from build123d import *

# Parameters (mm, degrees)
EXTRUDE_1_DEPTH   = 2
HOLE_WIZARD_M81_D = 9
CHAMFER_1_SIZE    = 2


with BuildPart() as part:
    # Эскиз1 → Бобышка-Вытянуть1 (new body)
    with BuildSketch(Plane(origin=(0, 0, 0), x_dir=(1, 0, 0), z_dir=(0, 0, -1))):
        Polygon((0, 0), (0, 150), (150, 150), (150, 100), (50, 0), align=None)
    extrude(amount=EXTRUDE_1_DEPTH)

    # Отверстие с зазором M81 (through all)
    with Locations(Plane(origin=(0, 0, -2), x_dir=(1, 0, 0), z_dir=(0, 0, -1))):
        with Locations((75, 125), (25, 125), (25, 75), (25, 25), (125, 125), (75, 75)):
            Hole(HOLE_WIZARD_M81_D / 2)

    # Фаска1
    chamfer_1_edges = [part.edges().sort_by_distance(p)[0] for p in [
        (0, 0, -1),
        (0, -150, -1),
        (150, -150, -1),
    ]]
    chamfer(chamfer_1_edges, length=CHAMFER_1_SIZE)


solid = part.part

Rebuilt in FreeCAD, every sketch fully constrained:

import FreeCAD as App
import Part
import Sketcher
from FreeCAD import Vector
Q = App.Units.Quantity


def edges_at(feature, points):
    """Names of the edges that pass closest to the given points."""
    edges = feature.Shape.Edges
    near = lambda p: min(range(len(edges)), key=lambda i: edges[i].distToShape(Part.Vertex(*p))[0])
    return sorted({f"Edge{near(p) + 1}" for p in points})

doc = App.newDocument("Part")
body = doc.addObject("PartDesign::Body", "Body")

# Sketch on XY plane
sketch1 = doc.addObject("Sketcher::SketchObject", "Sketch")
body.addObject(sketch1)
sketch1.AttachmentSupport = (doc.XY_Plane, [""])
sketch1.MapMode = "FlatFace"
sketch1.addGeometry([
    Part.LineSegment(Vector(0, -150, 0), Vector(0, 0, 0)),  # 0
    Part.LineSegment(Vector(0, 0, 0), Vector(50, 0, 0)),  # 1
    Part.LineSegment(Vector(50, 0, 0), Vector(150, -100, 0)),  # 2
    Part.LineSegment(Vector(150, -100, 0), Vector(150, -150, 0)),  # 3
    Part.LineSegment(Vector(150, -150, 0), Vector(0, -150, 0)),  # 4
], False)
sketch1.addConstraint([
    Sketcher.Constraint("Coincident", 0, 2, 1, 1),
    Sketcher.Constraint("Coincident", 1, 2, 2, 1),
    Sketcher.Constraint("Coincident", 2, 2, 3, 1),
    Sketcher.Constraint("Coincident", 3, 2, 4, 1),
    Sketcher.Constraint("Coincident", 4, 2, 0, 1),
    Sketcher.Constraint("Vertical", 0),
    Sketcher.Constraint("Horizontal", 1),
    Sketcher.Constraint("Vertical", 3),
    Sketcher.Constraint("Horizontal", 4),
    Sketcher.Constraint("Coincident", 0, 2, -1, 1),
    Sketcher.Constraint("Equal", 4, 0),
    Sketcher.Constraint("Equal", 1, 3),
    Sketcher.Constraint("DistanceX", 1, 1, 1, 2, Q("50 mm")),
    Sketcher.Constraint("DistanceX", 4, 2, 4, 1, Q("150 mm")),
])
pad1 = doc.addObject("PartDesign::Pad", "Pad")
body.addObject(pad1)
pad1.Profile = sketch1
pad1.Length = 2
pad1.Reversed = True

# Sketch on XY plane
sketch2 = doc.addObject("Sketcher::SketchObject", "Sketch001")
body.addObject(sketch2)
sketch2.AttachmentSupport = (doc.XY_Plane, [""])
sketch2.MapMode = "FlatFace"
sketch2.AttachmentOffset = App.Placement(Vector(0, 0, -2), App.Rotation())
sketch2.addGeometry([
    Part.Circle(Vector(75, -125, 0), Vector(0, 0, 1), 4.5),  # 0
    Part.Circle(Vector(25, -125, 0), Vector(0, 0, 1), 4.5),  # 1
    Part.Circle(Vector(25, -75, 0), Vector(0, 0, 1), 4.5),  # 2
    Part.Circle(Vector(25, -25, 0), Vector(0, 0, 1), 4.5),  # 3
    Part.Circle(Vector(125, -125, 0), Vector(0, 0, 1), 4.5),  # 4
    Part.Circle(Vector(75, -75, 0), Vector(0, 0, 1), 4.5),  # 5
], False)
sketch2.addConstraint([
    Sketcher.Constraint("Equal", 0, 1),
    Sketcher.Constraint("Equal", 1, 2),
    Sketcher.Constraint("Equal", 2, 3),
    Sketcher.Constraint("Equal", 3, 4),
    Sketcher.Constraint("Equal", 4, 5),
    Sketcher.Constraint("Horizontal", 0, 3, 1, 3),
    Sketcher.Constraint("Horizontal", 1, 3, 4, 3),
    Sketcher.Constraint("Horizontal", 2, 3, 5, 3),
    Sketcher.Constraint("Vertical", 1, 3, 2, 3),
    Sketcher.Constraint("Vertical", 2, 3, 3, 3),
    Sketcher.Constraint("Vertical", 0, 3, 5, 3),
    Sketcher.Constraint("Diameter", 0, Q("9 mm")),
    Sketcher.Constraint("DistanceX", -1, 1, 0, 3, Q("75 mm")),
    Sketcher.Constraint("DistanceY", 0, 3, -1, 1, Q("125 mm")),
    Sketcher.Constraint("DistanceX", -1, 1, 1, 3, Q("25 mm")),
    Sketcher.Constraint("DistanceY", 2, 3, -1, 1, Q("75 mm")),
    Sketcher.Constraint("DistanceY", 3, 3, -1, 1, Q("25 mm")),
    Sketcher.Constraint("DistanceX", -1, 1, 4, 3, Q("125 mm")),
])
doc.recompute()
hole = doc.addObject("PartDesign::Hole", "Hole")
body.addObject(hole)
hole.Profile = sketch2
hole.ThreadType = "None"
hole.Diameter = 9
hole.DepthType = "ThroughAll"
hole.Reversed = True
doc.recompute()

chamfer = doc.addObject("PartDesign::Chamfer", "Chamfer")
body.addObject(chamfer)
chamfer.Base = (hole, edges_at(hole, [(0, 0, -1), (0, -150, -1), (150, -150, -1)]))
chamfer.Size = 2

doc.recompute()
